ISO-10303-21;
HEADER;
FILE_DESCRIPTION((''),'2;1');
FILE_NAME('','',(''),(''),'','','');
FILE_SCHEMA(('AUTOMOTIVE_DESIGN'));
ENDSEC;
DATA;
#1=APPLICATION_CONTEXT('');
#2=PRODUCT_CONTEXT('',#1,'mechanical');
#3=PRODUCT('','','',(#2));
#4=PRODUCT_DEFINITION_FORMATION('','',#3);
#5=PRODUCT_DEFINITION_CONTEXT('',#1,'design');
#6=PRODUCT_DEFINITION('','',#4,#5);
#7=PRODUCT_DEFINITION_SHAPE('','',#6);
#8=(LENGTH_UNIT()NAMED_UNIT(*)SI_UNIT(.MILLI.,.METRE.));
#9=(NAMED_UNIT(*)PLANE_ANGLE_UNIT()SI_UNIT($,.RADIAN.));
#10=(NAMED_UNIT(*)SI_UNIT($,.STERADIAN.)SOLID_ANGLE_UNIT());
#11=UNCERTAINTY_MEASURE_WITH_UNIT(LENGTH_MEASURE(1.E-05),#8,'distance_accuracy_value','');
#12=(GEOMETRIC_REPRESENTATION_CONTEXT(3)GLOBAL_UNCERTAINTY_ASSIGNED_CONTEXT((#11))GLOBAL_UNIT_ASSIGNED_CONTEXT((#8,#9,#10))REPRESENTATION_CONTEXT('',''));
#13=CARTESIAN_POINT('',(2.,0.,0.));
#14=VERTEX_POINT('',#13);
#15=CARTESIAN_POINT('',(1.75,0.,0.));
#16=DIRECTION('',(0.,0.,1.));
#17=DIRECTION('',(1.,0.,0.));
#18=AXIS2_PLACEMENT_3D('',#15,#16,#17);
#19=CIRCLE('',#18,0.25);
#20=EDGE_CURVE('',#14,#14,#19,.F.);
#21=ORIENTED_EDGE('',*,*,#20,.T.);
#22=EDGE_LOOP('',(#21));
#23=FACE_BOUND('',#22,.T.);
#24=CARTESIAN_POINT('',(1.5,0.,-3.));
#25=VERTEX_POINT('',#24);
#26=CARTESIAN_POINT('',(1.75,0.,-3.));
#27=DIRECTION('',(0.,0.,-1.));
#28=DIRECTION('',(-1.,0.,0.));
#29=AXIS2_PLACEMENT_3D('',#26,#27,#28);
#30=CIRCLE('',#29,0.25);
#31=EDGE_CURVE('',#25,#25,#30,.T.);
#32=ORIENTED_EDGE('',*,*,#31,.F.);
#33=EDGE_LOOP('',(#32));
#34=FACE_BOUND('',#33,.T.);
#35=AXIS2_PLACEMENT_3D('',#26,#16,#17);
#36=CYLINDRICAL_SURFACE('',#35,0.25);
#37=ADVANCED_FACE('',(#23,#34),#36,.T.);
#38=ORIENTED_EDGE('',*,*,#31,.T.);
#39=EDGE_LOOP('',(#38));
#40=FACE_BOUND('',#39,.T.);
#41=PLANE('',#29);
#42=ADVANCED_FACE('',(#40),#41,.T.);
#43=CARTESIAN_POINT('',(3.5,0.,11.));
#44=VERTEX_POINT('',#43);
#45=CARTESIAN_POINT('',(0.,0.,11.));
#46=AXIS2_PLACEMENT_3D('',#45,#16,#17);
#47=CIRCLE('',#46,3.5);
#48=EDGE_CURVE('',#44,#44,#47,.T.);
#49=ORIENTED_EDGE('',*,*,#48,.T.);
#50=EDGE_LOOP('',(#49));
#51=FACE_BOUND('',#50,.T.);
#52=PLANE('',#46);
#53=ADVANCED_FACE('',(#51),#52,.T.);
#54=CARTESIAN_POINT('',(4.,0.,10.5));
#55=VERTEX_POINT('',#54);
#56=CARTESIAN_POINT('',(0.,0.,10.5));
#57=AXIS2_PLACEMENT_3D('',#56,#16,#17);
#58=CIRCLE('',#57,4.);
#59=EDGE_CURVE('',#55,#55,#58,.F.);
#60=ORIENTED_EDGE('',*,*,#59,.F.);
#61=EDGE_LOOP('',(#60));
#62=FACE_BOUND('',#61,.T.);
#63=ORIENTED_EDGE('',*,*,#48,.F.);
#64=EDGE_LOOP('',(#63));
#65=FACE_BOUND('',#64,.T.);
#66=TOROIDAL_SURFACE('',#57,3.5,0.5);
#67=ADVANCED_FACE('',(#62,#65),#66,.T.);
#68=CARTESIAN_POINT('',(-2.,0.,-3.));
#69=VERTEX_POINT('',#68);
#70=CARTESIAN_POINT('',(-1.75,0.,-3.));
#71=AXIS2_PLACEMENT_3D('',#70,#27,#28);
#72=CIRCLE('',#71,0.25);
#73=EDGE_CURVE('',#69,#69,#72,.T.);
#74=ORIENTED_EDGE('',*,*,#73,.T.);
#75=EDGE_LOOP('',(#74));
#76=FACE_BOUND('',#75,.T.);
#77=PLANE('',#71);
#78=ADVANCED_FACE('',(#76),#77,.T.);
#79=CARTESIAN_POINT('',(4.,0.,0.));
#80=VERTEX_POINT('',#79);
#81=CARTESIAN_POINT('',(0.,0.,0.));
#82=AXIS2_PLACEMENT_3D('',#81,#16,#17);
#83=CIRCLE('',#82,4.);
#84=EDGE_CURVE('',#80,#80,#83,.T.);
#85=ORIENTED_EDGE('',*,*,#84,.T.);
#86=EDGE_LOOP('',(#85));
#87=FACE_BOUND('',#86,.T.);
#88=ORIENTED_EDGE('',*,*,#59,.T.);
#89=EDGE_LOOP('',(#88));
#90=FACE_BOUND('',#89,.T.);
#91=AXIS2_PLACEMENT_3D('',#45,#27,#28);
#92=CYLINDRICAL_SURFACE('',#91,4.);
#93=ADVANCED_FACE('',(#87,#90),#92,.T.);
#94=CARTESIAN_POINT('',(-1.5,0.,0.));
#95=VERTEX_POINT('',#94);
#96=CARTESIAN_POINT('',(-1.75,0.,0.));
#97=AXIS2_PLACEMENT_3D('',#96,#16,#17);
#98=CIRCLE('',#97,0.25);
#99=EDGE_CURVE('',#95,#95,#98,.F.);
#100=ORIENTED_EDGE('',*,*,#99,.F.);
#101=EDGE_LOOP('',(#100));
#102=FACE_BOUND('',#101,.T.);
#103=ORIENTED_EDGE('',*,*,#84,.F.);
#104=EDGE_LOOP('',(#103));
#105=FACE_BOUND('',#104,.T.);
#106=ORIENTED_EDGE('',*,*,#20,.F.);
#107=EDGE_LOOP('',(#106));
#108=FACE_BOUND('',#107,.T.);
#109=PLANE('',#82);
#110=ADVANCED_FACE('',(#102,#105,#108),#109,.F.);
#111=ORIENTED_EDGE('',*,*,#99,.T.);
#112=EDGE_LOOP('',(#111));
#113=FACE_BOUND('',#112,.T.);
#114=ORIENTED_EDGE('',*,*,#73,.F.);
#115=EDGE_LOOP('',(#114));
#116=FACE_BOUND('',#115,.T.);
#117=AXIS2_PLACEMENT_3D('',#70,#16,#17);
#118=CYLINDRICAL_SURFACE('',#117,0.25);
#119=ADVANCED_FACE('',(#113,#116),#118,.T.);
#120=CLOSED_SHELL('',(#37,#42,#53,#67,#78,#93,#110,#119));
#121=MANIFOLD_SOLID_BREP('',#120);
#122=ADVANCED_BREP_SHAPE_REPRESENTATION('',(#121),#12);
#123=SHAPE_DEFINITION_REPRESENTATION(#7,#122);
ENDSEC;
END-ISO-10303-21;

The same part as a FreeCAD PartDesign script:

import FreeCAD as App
import Part
import Sketcher
from FreeCAD import Vector
Q = App.Units.Quantity


def edges_at(feature, points):
    """Names of the edges that pass closest to the given points."""
    edges = feature.Shape.Edges
    near = lambda p: min(range(len(edges)), key=lambda i: edges[i].distToShape(Part.Vertex(*p))[0])
    return sorted({f"Edge{near(p) + 1}" for p in points})

doc = App.newDocument("Part")
params = doc.addObject("Spreadsheet::Sheet", "Params")
for row, (alias, value) in enumerate([
    ("sketch1_diameter", "8 mm"),
    ("pad1_length", "11 mm"),
    ("sketch2_diameter", "0.5 mm"),
    ("pad2_length", "3 mm"),
    ("fillet_radius", "0.5 mm"),
], start=1):
    params.set(f"A{row}", alias)
    params.set(f"B{row}", "=" + value)
    params.setAlias(f"B{row}", alias)

body = doc.addObject("PartDesign::Body", "Body")

sketch1 = body.newObject("Sketcher::SketchObject", "Sketch")
sketch1.AttachmentSupport = (doc.getObject("XY_Plane"), [""])
sketch1.MapMode = "FlatFace"
sketch1.addGeometry(Part.Circle(Vector(0, 0, 0), Vector(0, 0, 1), 4), False)
sketch1.addConstraint(Sketcher.Constraint("Coincident", 0, 3, -1, 1))
sketch1.addConstraint(Sketcher.Constraint("Diameter", 0, Q("8 mm")))
sketch1.setExpression("Constraints[1]", "Params.sketch1_diameter")
pad1 = body.newObject("PartDesign::Pad", "Pad")
pad1.Profile = sketch1
pad1.setExpression("Length", "Params.pad1_length")

sketch2 = body.newObject("Sketcher::SketchObject", "Sketch001")
sketch2.AttachmentSupport = (doc.getObject("XY_Plane"), [""])
sketch2.MapMode = "FlatFace"
sketch2.addGeometry(Part.Circle(Vector(1.75, 0, 0), Vector(0, 0, 1), 0.25), False)
sketch2.addGeometry(Part.Circle(Vector(-1.75, 0, 0), Vector(0, 0, 1), 0.25), False)
sketch2.addConstraint(Sketcher.Constraint("Equal", 0, 1))
sketch2.addConstraint(Sketcher.Constraint("Symmetric", 0, 3, 1, 3, -1, 1))
sketch2.addConstraint(Sketcher.Constraint("PointOnObject", 0, 3, -1))
sketch2.addConstraint(Sketcher.Constraint("Diameter", 0, Q("0.5 mm")))
sketch2.addConstraint(Sketcher.Constraint("DistanceX", 1, 3, 0, 3, Q("3.5 mm")))
sketch2.setExpression("Constraints[3]", "Params.sketch2_diameter")
pad2 = body.newObject("PartDesign::Pad", "Pad001")
pad2.Profile = sketch2
pad2.setExpression("Length", "Params.pad2_length")
pad2.Reversed = True
doc.recompute()

fillet = body.newObject("PartDesign::Fillet", "Fillet")
fillet.Base = (pad2, edges_at(pad2, [(-4, 0, 11)]))
fillet.setExpression("Radius", "Params.fillet_radius")

doc.recompute()
